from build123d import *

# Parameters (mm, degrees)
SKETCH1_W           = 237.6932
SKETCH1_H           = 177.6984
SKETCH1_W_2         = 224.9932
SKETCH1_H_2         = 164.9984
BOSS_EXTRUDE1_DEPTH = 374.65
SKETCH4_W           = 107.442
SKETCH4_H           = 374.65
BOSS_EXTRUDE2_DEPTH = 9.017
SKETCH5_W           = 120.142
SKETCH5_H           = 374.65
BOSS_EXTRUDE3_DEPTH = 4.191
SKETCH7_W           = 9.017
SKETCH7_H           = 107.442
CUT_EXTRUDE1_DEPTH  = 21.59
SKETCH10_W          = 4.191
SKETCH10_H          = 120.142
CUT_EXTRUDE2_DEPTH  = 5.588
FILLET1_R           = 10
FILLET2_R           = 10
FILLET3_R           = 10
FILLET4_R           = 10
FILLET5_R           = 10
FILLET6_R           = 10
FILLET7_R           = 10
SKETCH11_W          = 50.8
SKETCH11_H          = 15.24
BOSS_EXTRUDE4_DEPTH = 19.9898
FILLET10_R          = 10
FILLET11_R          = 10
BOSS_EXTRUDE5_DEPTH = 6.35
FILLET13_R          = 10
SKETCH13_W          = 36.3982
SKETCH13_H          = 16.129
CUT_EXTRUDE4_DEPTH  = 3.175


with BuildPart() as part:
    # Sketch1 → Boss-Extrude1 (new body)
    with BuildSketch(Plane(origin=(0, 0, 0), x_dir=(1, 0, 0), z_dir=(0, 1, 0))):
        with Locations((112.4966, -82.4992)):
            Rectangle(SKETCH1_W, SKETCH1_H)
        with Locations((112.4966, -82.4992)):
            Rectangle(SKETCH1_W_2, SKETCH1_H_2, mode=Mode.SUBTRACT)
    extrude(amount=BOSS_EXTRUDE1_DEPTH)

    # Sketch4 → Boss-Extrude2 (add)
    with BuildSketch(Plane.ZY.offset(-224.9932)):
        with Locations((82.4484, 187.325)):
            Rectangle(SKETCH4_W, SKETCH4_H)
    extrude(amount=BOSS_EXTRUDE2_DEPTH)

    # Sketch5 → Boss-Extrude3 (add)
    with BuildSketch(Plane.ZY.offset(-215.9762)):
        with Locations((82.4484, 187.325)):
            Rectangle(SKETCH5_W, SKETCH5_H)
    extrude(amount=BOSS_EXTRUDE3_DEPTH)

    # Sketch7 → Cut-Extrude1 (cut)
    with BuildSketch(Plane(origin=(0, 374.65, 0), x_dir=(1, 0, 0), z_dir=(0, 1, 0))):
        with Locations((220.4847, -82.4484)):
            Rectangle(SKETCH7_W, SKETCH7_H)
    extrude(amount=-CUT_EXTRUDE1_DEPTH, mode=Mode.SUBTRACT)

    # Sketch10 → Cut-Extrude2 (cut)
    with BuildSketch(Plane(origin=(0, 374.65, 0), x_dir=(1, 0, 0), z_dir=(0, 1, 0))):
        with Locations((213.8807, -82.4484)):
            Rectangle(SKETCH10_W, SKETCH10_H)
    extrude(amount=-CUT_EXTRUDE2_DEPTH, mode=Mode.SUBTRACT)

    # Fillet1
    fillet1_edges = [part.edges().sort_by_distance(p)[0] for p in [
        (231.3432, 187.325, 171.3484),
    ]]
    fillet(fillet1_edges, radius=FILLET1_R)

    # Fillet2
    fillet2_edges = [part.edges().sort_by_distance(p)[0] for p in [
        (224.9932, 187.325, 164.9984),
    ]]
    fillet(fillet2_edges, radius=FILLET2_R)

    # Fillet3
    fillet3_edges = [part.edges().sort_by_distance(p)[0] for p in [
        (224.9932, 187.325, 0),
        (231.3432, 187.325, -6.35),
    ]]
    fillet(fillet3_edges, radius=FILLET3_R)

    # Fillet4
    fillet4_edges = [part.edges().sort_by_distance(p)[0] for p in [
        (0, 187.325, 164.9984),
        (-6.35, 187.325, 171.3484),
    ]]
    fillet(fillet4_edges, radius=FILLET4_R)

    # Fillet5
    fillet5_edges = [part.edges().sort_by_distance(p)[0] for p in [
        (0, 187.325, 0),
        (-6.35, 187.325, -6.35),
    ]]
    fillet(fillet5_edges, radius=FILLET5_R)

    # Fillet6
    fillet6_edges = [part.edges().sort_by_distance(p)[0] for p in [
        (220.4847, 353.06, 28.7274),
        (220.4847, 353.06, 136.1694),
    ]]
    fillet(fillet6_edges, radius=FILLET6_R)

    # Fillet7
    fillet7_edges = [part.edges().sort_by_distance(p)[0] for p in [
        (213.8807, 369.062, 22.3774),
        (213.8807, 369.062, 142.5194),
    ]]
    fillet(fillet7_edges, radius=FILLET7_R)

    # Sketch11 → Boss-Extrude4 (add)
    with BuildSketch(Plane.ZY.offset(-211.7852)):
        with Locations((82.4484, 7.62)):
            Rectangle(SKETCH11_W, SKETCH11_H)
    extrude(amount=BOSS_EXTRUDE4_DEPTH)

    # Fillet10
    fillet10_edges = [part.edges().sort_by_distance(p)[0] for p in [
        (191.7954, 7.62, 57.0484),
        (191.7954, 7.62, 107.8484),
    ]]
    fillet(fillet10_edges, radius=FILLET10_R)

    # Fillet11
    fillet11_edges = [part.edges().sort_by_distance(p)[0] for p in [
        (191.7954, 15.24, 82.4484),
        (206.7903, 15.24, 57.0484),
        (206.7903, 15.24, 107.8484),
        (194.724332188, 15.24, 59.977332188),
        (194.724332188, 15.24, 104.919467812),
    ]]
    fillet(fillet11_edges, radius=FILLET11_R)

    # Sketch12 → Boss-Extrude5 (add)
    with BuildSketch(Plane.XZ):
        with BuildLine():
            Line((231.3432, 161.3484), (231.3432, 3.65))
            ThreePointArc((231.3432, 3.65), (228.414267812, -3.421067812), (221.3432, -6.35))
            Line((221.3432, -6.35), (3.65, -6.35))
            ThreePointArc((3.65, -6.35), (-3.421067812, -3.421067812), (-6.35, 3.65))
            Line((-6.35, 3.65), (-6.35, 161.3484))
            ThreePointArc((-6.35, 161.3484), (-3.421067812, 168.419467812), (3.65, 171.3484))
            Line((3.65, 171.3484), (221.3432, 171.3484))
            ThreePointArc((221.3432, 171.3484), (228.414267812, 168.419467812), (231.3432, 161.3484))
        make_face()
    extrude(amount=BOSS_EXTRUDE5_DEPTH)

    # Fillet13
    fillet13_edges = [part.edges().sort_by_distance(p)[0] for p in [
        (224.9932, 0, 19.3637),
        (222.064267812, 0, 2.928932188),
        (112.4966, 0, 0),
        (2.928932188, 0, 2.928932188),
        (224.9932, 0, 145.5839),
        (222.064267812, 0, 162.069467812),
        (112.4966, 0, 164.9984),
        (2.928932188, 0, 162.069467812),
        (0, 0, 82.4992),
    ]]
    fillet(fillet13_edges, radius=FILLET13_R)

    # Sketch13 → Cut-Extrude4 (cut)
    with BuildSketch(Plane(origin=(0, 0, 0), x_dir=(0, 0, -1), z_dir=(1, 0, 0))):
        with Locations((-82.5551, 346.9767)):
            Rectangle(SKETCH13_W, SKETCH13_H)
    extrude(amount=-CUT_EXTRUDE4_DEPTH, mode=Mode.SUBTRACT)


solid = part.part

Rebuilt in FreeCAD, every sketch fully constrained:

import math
import FreeCAD as App
import Part
import Sketcher

V = App.Vector
Q = App.Units.Quantity


def edges_at(feature, points):
    """Names of the edges that pass closest to the given points."""
    edges = feature.Shape.Edges
    near = lambda p: min(range(len(edges)), key=lambda i: edges[i].distToShape(Part.Vertex(*p))[0])
    return sorted({f"Edge{near(p) + 1}" for p in points})

doc = App.newDocument("Part")
params = doc.addObject("Spreadsheet::Sheet", "Params")
for row, (alias, value) in enumerate([
    ("sketch1_width", "9.358 in"),
    ("sketch1_width2", "8.858 in"),
    ("sketch1_height", "6.996 in"),
    ("sketch1_height2", "6.496 in"),
    ("pad1_length", "14.75 in"),
    ("sketch2_width", "14.75 in"),
    ("sketch2_height", "4.23 in"),
    ("pad2_length", "0.355 in"),
    ("sketch3_width", "14.75 in"),
    ("sketch3_height", "4.73 in"),
    ("pad3_length", "0.165 in"),
    ("sketch4_height", "4.23 in"),
    ("sketch4_width", "0.355 in"),
    ("pocket1_length", "0.85 in"),
    ("sketch5_height", "4.73 in"),
    ("sketch5_width", "0.165 in"),
    ("pocket2_length", "0.22 in"),
    ("fillet_radius", "10 mm"),
    ("fillet2_radius", "10 mm"),
    ("fillet3_radius", "10 mm"),
    ("fillet4_radius", "10 mm"),
    ("fillet5_radius", "10 mm"),
    ("fillet6_radius", "10 mm"),
    ("fillet7_radius", "10 mm"),
    ("sketch6_height", "2 in"),
    ("sketch6_width", "0.6 in"),
    ("pad4_length", "0.787 in"),
    ("fillet8_radius", "10 mm"),
    ("fillet9_radius", "10 mm"),
    ("pad5_length", "0.25 in"),
    ("fillet10_radius", "10 mm"),
    ("sketch8_width", "0.635 in"),
    ("sketch8_height", "1.433 in"),
    ("pocket3_length", "0.125 in"),
], start=1):
    params.set(f"A{row}", alias)
    params.set(f"B{row}", "=" + value)
    params.setAlias(f"B{row}", alias)

body = doc.addObject("PartDesign::Body", "Body")

sketch1 = body.newObject("Sketcher::SketchObject", "Sketch")
sketch1.AttachmentSupport = (doc.getObject("XZ_Plane"), [""])
sketch1.MapMode = "FlatFace"
sketch1.addGeometry([
    Part.LineSegment(V(-6.35, -6.35, 0), V(-6.35, 171.3484, 0)),
    Part.LineSegment(V(-6.35, 171.3484, 0), V(231.3432, 171.3484, 0)),
    Part.LineSegment(V(231.3432, 171.3484, 0), V(231.3432, -6.35, 0)),
    Part.LineSegment(V(231.3432, -6.35, 0), V(-6.35, -6.35, 0)),
    Part.LineSegment(V(224.9932, 164.9984, 0), V(0, 164.9984, 0)),
    Part.LineSegment(V(0, 164.9984, 0), V(0, 0, 0)),
    Part.LineSegment(V(0, 0, 0), V(224.9932, 0, 0)),
    Part.LineSegment(V(224.9932, 0, 0), V(224.9932, 164.9984, 0)),
], False)
sketch1.addConstraint([
    Sketcher.Constraint("Coincident", 0, 2, 1, 1),
    Sketcher.Constraint("Coincident", 1, 2, 2, 1),
    Sketcher.Constraint("Coincident", 2, 2, 3, 1),
    Sketcher.Constraint("Coincident", 3, 2, 0, 1),
    Sketcher.Constraint("Coincident", 4, 2, 5, 1),
    Sketcher.Constraint("Coincident", 5, 2, 6, 1),
    Sketcher.Constraint("Coincident", 6, 2, 7, 1),
    Sketcher.Constraint("Coincident", 7, 2, 4, 1),
    Sketcher.Constraint("Vertical", 0),
    Sketcher.Constraint("Horizontal", 1),
    Sketcher.Constraint("Vertical", 2),
    Sketcher.Constraint("Horizontal", 3),
    Sketcher.Constraint("Horizontal", 4),
    Sketcher.Constraint("Vertical", 5),
    Sketcher.Constraint("Horizontal", 6),
    Sketcher.Constraint("Vertical", 7),
    Sketcher.Constraint("Coincident", 5, 2, -1, 1),
    Sketcher.Constraint("DistanceX", 1, 1, 1, 2, Q("9.358 in")),
    Sketcher.Constraint("DistanceX", 4, 2, 4, 1, Q("8.858 in")),
    Sketcher.Constraint("DistanceY", 0, 1, 0, 2, Q("6.996 in")),
    Sketcher.Constraint("DistanceY", 5, 2, 5, 1, Q("6.496 in")),
    Sketcher.Constraint("DistanceX", 0, 2, -1, 1, Q("0.25 in")),
    Sketcher.Constraint("DistanceY", 2, 2, -1, 1, Q("0.25 in")),
])
sketch1.setExpression("Constraints[17]", "Params.sketch1_width")
sketch1.setExpression("Constraints[18]", "Params.sketch1_width2")
sketch1.setExpression("Constraints[19]", "Params.sketch1_height")
sketch1.setExpression("Constraints[20]", "Params.sketch1_height2")
pad1 = body.newObject("PartDesign::Pad", "Pad")
pad1.Profile = sketch1
pad1.setExpression("Length", "Params.pad1_length")
pad1.Reversed = True

sketch2 = body.newObject("Sketcher::SketchObject", "Sketch001")
sketch2.AttachmentSupport = (doc.getObject("YZ_Plane"), [""])
sketch2.MapMode = "FlatFace"
sketch2.AttachmentOffset = App.Placement(V(0, 0, 8.858 * 25.4), App.Rotation())
sketch2.addGeometry([
    Part.LineSegment(V(374.65, 28.7274, 0), V(0, 28.7274, 0)),
    Part.LineSegment(V(0, 28.7274, 0), V(0, 136.1694, 0)),
    Part.LineSegment(V(0, 136.1694, 0), V(374.65, 136.1694, 0)),
    Part.LineSegment(V(374.65, 136.1694, 0), V(374.65, 28.7274, 0)),
], False)
sketch2.addConstraint([
    Sketcher.Constraint("Coincident", 0, 2, 1, 1),
    Sketcher.Constraint("Coincident", 1, 2, 2, 1),
    Sketcher.Constraint("Coincident", 2, 2, 3, 1),
    Sketcher.Constraint("Coincident", 3, 2, 0, 1),
    Sketcher.Constraint("Horizontal", 0),
    Sketcher.Constraint("Vertical", 1),
    Sketcher.Constraint("Horizontal", 2),
    Sketcher.Constraint("Vertical", 3),
    Sketcher.Constraint("PointOnObject", 0, 2, -2),
    Sketcher.Constraint("DistanceX", 0, 2, 0, 1, Q("14.75 in")),
    Sketcher.Constraint("DistanceY", 1, 1, 1, 2, Q("4.23 in")),
    Sketcher.Constraint("DistanceY", -1, 1, 0, 2, Q("1.131 in")),
])
sketch2.setExpression("Constraints[9]", "Params.sketch2_width")
sketch2.setExpression("Constraints[10]", "Params.sketch2_height")
pad2 = body.newObject("PartDesign::Pad", "Pad001")
pad2.Profile = sketch2
pad2.setExpression("Length", "Params.pad2_length")
pad2.Reversed = True

sketch3 = body.newObject("Sketcher::SketchObject", "Sketch002")
sketch3.AttachmentSupport = (doc.getObject("YZ_Plane"), [""])
sketch3.MapMode = "FlatFace"
sketch3.AttachmentOffset = App.Placement(V(0, 0, 8.503 * 25.4), App.Rotation())
sketch3.addGeometry([
    Part.LineSegment(V(374.65, 22.3774, 0), V(0, 22.3774, 0)),
    Part.LineSegment(V(0, 22.3774, 0), V(0, 142.5194, 0)),
    Part.LineSegment(V(0, 142.5194, 0), V(374.65, 142.5194, 0)),
    Part.LineSegment(V(374.65, 142.5194, 0), V(374.65, 22.3774, 0)),
], False)
sketch3.addConstraint([
    Sketcher.Constraint("Coincident", 0, 2, 1, 1),
    Sketcher.Constraint("Coincident", 1, 2, 2, 1),
    Sketcher.Constraint("Coincident", 2, 2, 3, 1),
    Sketcher.Constraint("Coincident", 3, 2, 0, 1),
    Sketcher.Constraint("Horizontal", 0),
    Sketcher.Constraint("Vertical", 1),
    Sketcher.Constraint("Horizontal", 2),
    Sketcher.Constraint("Vertical", 3),
    Sketcher.Constraint("PointOnObject", 0, 2, -2),
    Sketcher.Constraint("DistanceX", 0, 2, 0, 1, Q("14.75 in")),
    Sketcher.Constraint("DistanceY", 1, 1, 1, 2, Q("4.73 in")),
    Sketcher.Constraint("DistanceY", -1, 1, 0, 2, Q("0.881 in")),
])
sketch3.setExpression("Constraints[9]", "Params.sketch3_width")
sketch3.setExpression("Constraints[10]", "Params.sketch3_height")
pad3 = body.newObject("PartDesign::Pad", "Pad002")
pad3.Profile = sketch3
pad3.setExpression("Length", "Params.pad3_length")
pad3.Reversed = True

sketch4 = body.newObject("Sketcher::SketchObject", "Sketch003")
sketch4.AttachmentSupport = (doc.getObject("XZ_Plane"), [""])
sketch4.MapMode = "FlatFace"
sketch4.AttachmentOffset = App.Placement(V(0, 0, -14.75 * 25.4), App.Rotation())
sketch4.addGeometry([
    Part.LineSegment(V(215.9762, 28.7274, 0), V(215.9762, 136.1694, 0)),
    Part.LineSegment(V(215.9762, 136.1694, 0), V(224.9932, 136.1694, 0)),
    Part.LineSegment(V(224.9932, 136.1694, 0), V(224.9932, 28.7274, 0)),
    Part.LineSegment(V(224.9932, 28.7274, 0), V(215.9762, 28.7274, 0)),
], False)
sketch4.addConstraint([
    Sketcher.Constraint("Coincident", 0, 2, 1, 1),
    Sketcher.Constraint("Coincident", 1, 2, 2, 1),
    Sketcher.Constraint("Coincident", 2, 2, 3, 1),
    Sketcher.Constraint("Coincident", 3, 2, 0, 1),
    Sketcher.Constraint("Vertical", 0),
    Sketcher.Constraint("Horizontal", 1),
    Sketcher.Constraint("Vertical", 2),
    Sketcher.Constraint("Horizontal", 3),
    Sketcher.Constraint("DistanceY", 0, 1, 0, 2, Q("4.23 in")),
    Sketcher.Constraint("DistanceX", 1, 1, 1, 2, Q("0.355 in")),
    Sketcher.Constraint("DistanceX", -1, 1, 0, 2, Q("8.503 in")),
    Sketcher.Constraint("DistanceY", -1, 1, 0, 2, Q("5.361 in")),
])
sketch4.setExpression("Constraints[8]", "Params.sketch4_height")
sketch4.setExpression("Constraints[9]", "Params.sketch4_width")
pocket1 = body.newObject("PartDesign::Pocket", "Pocket")
pocket1.Profile = sketch4
pocket1.setExpression("Length", "Params.pocket1_length")
pocket1.Reversed = True

sketch5 = body.newObject("Sketcher::SketchObject", "Sketch004")
sketch5.AttachmentSupport = (doc.getObject("XZ_Plane"), [""])
sketch5.MapMode = "FlatFace"
sketch5.AttachmentOffset = App.Placement(V(0, 0, -14.75 * 25.4), App.Rotation())
sketch5.addGeometry([
    Part.LineSegment(V(211.7852, 22.3774, 0), V(211.7852, 142.5194, 0)),
    Part.LineSegment(V(211.7852, 142.5194, 0), V(215.9762, 142.5194, 0)),
    Part.LineSegment(V(215.9762, 142.5194, 0), V(215.9762, 22.3774, 0)),
    Part.LineSegment(V(215.9762, 22.3774, 0), V(211.7852, 22.3774, 0)),
], False)
sketch5.addConstraint([
    Sketcher.Constraint("Coincident", 0, 2, 1, 1),
    Sketcher.Constraint("Coincident", 1, 2, 2, 1),
    Sketcher.Constraint("Coincident", 2, 2, 3, 1),
    Sketcher.Constraint("Coincident", 3, 2, 0, 1),
    Sketcher.Constraint("Vertical", 0),
    Sketcher.Constraint("Horizontal", 1),
    Sketcher.Constraint("Vertical", 2),
    Sketcher.Constraint("Horizontal", 3),
    Sketcher.Constraint("DistanceY", 0, 1, 0, 2, Q("4.73 in")),
    Sketcher.Constraint("DistanceX", 1, 1, 1, 2, Q("0.165 in")),
    Sketcher.Constraint("DistanceX", -1, 1, 0, 2, Q("8.338 in")),
    Sketcher.Constraint("DistanceY", -1, 1, 0, 2, Q("5.611 in")),
])
sketch5.setExpression("Constraints[8]", "Params.sketch5_height")
sketch5.setExpression("Constraints[9]", "Params.sketch5_width")
pocket2 = body.newObject("PartDesign::Pocket", "Pocket001")
pocket2.Profile = sketch5
pocket2.setExpression("Length", "Params.pocket2_length")
pocket2.Reversed = True
doc.recompute()

fillet = body.newObject("PartDesign::Fillet", "Fillet")
fillet.Base = (pocket2, edges_at(pocket2, [(231.343, 187.325, 171.348)]))
fillet.setExpression("Radius", "Params.fillet_radius")
doc.recompute()

fillet2 = body.newObject("PartDesign::Fillet", "Fillet001")
fillet2.Base = (fillet, edges_at(fillet, [(224.993, 187.325, 164.998)]))
fillet2.setExpression("Radius", "Params.fillet2_radius")
doc.recompute()

fillet3 = body.newObject("PartDesign::Fillet", "Fillet002")
fillet3.Base = (fillet2, edges_at(fillet2, [(224.993, 187.325, 0), (231.343, 187.325, -6.35)]))
fillet3.setExpression("Radius", "Params.fillet3_radius")
doc.recompute()

fillet4 = body.newObject("PartDesign::Fillet", "Fillet003")
fillet4.Base = (fillet3, edges_at(fillet3, [(0, 187.325, 164.998), (-6.35, 187.325, 171.348)]))
fillet4.setExpression("Radius", "Params.fillet4_radius")
doc.recompute()

fillet5 = body.newObject("PartDesign::Fillet", "Fillet004")
fillet5.Base = (fillet4, edges_at(fillet4, [(0, 187.325, 0), (-6.35, 187.325, -6.35)]))
fillet5.setExpression("Radius", "Params.fillet5_radius")
doc.recompute()

fillet6 = body.newObject("PartDesign::Fillet", "Fillet005")
fillet6.Base = (fillet5, edges_at(fillet5, [(220.485, 353.06, 28.727), (220.485, 353.06, 136.169)]))
fillet6.setExpression("Radius", "Params.fillet6_radius")
doc.recompute()

fillet7 = body.newObject("PartDesign::Fillet", "Fillet006")
fillet7.Base = (fillet6, edges_at(fillet6, [(213.881, 369.062, 22.377), (213.881, 369.062, 142.519)]))
fillet7.setExpression("Radius", "Params.fillet7_radius")

sketch6 = body.newObject("Sketcher::SketchObject", "Sketch005")
sketch6.AttachmentSupport = (doc.getObject("YZ_Plane"), [""])
sketch6.MapMode = "FlatFace"
sketch6.AttachmentOffset = App.Placement(V(0, 0, 8.338 * 25.4), App.Rotation())
sketch6.addGeometry([
    Part.LineSegment(V(15.24, 57.0484, 0), V(0, 57.0484, 0)),
    Part.LineSegment(V(0, 57.0484, 0), V(0, 107.8484, 0)),
    Part.LineSegment(V(0, 107.8484, 0), V(15.24, 107.8484, 0)),
    Part.LineSegment(V(15.24, 107.8484, 0), V(15.24, 57.0484, 0)),
], False)
sketch6.addConstraint([
    Sketcher.Constraint("Coincident", 0, 2, 1, 1),
    Sketcher.Constraint("Coincident", 1, 2, 2, 1),
    Sketcher.Constraint("Coincident", 2, 2, 3, 1),
    Sketcher.Constraint("Coincident", 3, 2, 0, 1),
    Sketcher.Constraint("Horizontal", 0),
    Sketcher.Constraint("Vertical", 1),
    Sketcher.Constraint("Horizontal", 2),
    Sketcher.Constraint("Vertical", 3),
    Sketcher.Constraint("PointOnObject", 0, 2, -2),
    Sketcher.Constraint("DistanceY", 1, 1, 1, 2, Q("2 in")),
    Sketcher.Constraint("DistanceX", 0, 2, 0, 1, Q("0.6 in")),
    Sketcher.Constraint("DistanceY", -1, 1, 0, 2, Q("2.246 in")),
])
sketch6.setExpression("Constraints[9]", "Params.sketch6_height")
sketch6.setExpression("Constraints[10]", "Params.sketch6_width")
pad4 = body.newObject("PartDesign::Pad", "Pad003")
pad4.Profile = sketch6
pad4.setExpression("Length", "Params.pad4_length")
pad4.Reversed = True
doc.recompute()

fillet8 = body.newObject("PartDesign::Fillet", "Fillet007")
fillet8.Base = (pad4, edges_at(pad4, [(191.795, 7.62, 57.048), (191.795, 7.62, 107.848)]))
fillet8.setExpression("Radius", "Params.fillet8_radius")
doc.recompute()

fillet9 = body.newObject("PartDesign::Fillet", "Fillet008")
fillet9.Base = (fillet8, edges_at(fillet8, [
    (191.795, 15.24, 82.448),
    (206.79, 15.24, 57.048),
    (206.79, 15.24, 107.848),
    (194.724, 15.24, 59.977),
    (194.724, 15.24, 104.919),
]))
fillet9.setExpression("Radius", "Params.fillet9_radius")

sketch7 = body.newObject("Sketcher::SketchObject", "Sketch006")
sketch7.AttachmentSupport = (doc.getObject("XZ_Plane"), [""])
sketch7.MapMode = "FlatFace"
sketch7.addGeometry([
    Part.LineSegment(V(231.3432, 3.65, 0), V(231.3432, 161.3484, 0)),
    Part.ArcOfCircle(Part.Circle(V(221.3432, 161.3484, 0), V(0, 0, 1), 10), math.radians(0), math.radians(90)),
    Part.LineSegment(V(221.3432, 171.3484, 0), V(3.65, 171.3484, 0)),
    Part.ArcOfCircle(Part.Circle(V(3.65, 161.3484, 0), V(0, 0, 1), 10), math.radians(90), math.radians(180)),
    Part.LineSegment(V(-6.35, 161.3484, 0), V(-6.35, 3.65, 0)),
    Part.ArcOfCircle(Part.Circle(V(3.65, 3.65, 0), V(0, 0, 1), 10), math.radians(180), math.radians(270)),
    Part.LineSegment(V(3.65, -6.35, 0), V(221.3432, -6.35, 0)),
    Part.ArcOfCircle(Part.Circle(V(221.3432, 3.65, 0), V(0, 0, 1), 10), math.radians(-90), math.radians(0)),
], False)
sketch7.addConstraint([
    Sketcher.Constraint("Tangent", 0, 2, 1, 1),
    Sketcher.Constraint("Tangent", 1, 2, 2, 1),
    Sketcher.Constraint("Tangent", 2, 2, 3, 1),
    Sketcher.Constraint("Tangent", 3, 2, 4, 1),
    Sketcher.Constraint("Tangent", 4, 2, 5, 1),
    Sketcher.Constraint("Tangent", 5, 2, 6, 1),
    Sketcher.Constraint("Tangent", 6, 2, 7, 1),
    Sketcher.Constraint("Tangent", 7, 2, 0, 1),
    Sketcher.Constraint("Vertical", 0),
    Sketcher.Constraint("Horizontal", 2),
    Sketcher.Constraint("Vertical", 4),
    Sketcher.Constraint("Horizontal", 6),
    Sketcher.Constraint("Equal", 1, 3),
    Sketcher.Constraint("Equal", 3, 5),
    Sketcher.Constraint("Equal", 5, 7),
    Sketcher.Constraint("DistanceX", 3, 2, -1, 1, Q("0.25 in")),
    Sketcher.Constraint("DistanceY", 5, 2, -1, 1, Q("0.25 in")),
    Sketcher.Constraint("Radius", 1, Q("10 mm")),
    Sketcher.Constraint("DistanceX", -1, 1, 0, 2, Q("9.108 in")),
    Sketcher.Constraint("DistanceY", -1, 1, 1, 2, Q("6.746 in")),
])
pad5 = body.newObject("PartDesign::Pad", "Pad004")
pad5.Profile = sketch7
pad5.setExpression("Length", "Params.pad5_length")
doc.recompute()

fillet10 = body.newObject("PartDesign::Fillet", "Fillet009")
fillet10.Base = (pad5, edges_at(pad5, [
    (224.993, 0, 19.364),
    (222.064, 0, 2.929),
    (112.497, 0, 0),
    (2.929, 0, 2.929),
    (224.993, 0, 145.584),
    (222.064, 0, 162.069),
    (112.497, 0, 164.998),
    (2.929, 0, 162.069),
    (0, 0, 82.499),
]))
fillet10.setExpression("Radius", "Params.fillet10_radius")

sketch8 = body.newObject("Sketcher::SketchObject", "Sketch007")
sketch8.AttachmentSupport = (doc.getObject("YZ_Plane"), [""])
sketch8.MapMode = "FlatFace"
sketch8.addGeometry([
    Part.LineSegment(V(355.0412, 100.7542, 0), V(338.9122, 100.7542, 0)),
    Part.LineSegment(V(338.9122, 100.7542, 0), V(338.9122, 64.356, 0)),
    Part.LineSegment(V(338.9122, 64.356, 0), V(355.0412, 64.356, 0)),
    Part.LineSegment(V(355.0412, 64.356, 0), V(355.0412, 100.7542, 0)),
], False)
sketch8.addConstraint([
    Sketcher.Constraint("Coincident", 0, 2, 1, 1),
    Sketcher.Constraint("Coincident", 1, 2, 2, 1),
    Sketcher.Constraint("Coincident", 2, 2, 3, 1),
    Sketcher.Constraint("Coincident", 3, 2, 0, 1),
    Sketcher.Constraint("Horizontal", 0),
    Sketcher.Constraint("Vertical", 1),
    Sketcher.Constraint("Horizontal", 2),
    Sketcher.Constraint("Vertical", 3),
    Sketcher.Constraint("DistanceX", 0, 2, 0, 1, Q("0.635 in")),
    Sketcher.Constraint("DistanceY", 1, 2, 1, 1, Q("1.433 in")),
    Sketcher.Constraint("DistanceX", -1, 1, 0, 2, Q("13.343 in")),
    Sketcher.Constraint("DistanceY", -1, 1, 0, 2, Q("100.7542 mm")),
])
sketch8.setExpression("Constraints[8]", "Params.sketch8_width")
sketch8.setExpression("Constraints[9]", "Params.sketch8_height")
pocket3 = body.newObject("PartDesign::Pocket", "Pocket002")
pocket3.Profile = sketch8
pocket3.setExpression("Length", "Params.pocket3_length")

doc.recompute()
